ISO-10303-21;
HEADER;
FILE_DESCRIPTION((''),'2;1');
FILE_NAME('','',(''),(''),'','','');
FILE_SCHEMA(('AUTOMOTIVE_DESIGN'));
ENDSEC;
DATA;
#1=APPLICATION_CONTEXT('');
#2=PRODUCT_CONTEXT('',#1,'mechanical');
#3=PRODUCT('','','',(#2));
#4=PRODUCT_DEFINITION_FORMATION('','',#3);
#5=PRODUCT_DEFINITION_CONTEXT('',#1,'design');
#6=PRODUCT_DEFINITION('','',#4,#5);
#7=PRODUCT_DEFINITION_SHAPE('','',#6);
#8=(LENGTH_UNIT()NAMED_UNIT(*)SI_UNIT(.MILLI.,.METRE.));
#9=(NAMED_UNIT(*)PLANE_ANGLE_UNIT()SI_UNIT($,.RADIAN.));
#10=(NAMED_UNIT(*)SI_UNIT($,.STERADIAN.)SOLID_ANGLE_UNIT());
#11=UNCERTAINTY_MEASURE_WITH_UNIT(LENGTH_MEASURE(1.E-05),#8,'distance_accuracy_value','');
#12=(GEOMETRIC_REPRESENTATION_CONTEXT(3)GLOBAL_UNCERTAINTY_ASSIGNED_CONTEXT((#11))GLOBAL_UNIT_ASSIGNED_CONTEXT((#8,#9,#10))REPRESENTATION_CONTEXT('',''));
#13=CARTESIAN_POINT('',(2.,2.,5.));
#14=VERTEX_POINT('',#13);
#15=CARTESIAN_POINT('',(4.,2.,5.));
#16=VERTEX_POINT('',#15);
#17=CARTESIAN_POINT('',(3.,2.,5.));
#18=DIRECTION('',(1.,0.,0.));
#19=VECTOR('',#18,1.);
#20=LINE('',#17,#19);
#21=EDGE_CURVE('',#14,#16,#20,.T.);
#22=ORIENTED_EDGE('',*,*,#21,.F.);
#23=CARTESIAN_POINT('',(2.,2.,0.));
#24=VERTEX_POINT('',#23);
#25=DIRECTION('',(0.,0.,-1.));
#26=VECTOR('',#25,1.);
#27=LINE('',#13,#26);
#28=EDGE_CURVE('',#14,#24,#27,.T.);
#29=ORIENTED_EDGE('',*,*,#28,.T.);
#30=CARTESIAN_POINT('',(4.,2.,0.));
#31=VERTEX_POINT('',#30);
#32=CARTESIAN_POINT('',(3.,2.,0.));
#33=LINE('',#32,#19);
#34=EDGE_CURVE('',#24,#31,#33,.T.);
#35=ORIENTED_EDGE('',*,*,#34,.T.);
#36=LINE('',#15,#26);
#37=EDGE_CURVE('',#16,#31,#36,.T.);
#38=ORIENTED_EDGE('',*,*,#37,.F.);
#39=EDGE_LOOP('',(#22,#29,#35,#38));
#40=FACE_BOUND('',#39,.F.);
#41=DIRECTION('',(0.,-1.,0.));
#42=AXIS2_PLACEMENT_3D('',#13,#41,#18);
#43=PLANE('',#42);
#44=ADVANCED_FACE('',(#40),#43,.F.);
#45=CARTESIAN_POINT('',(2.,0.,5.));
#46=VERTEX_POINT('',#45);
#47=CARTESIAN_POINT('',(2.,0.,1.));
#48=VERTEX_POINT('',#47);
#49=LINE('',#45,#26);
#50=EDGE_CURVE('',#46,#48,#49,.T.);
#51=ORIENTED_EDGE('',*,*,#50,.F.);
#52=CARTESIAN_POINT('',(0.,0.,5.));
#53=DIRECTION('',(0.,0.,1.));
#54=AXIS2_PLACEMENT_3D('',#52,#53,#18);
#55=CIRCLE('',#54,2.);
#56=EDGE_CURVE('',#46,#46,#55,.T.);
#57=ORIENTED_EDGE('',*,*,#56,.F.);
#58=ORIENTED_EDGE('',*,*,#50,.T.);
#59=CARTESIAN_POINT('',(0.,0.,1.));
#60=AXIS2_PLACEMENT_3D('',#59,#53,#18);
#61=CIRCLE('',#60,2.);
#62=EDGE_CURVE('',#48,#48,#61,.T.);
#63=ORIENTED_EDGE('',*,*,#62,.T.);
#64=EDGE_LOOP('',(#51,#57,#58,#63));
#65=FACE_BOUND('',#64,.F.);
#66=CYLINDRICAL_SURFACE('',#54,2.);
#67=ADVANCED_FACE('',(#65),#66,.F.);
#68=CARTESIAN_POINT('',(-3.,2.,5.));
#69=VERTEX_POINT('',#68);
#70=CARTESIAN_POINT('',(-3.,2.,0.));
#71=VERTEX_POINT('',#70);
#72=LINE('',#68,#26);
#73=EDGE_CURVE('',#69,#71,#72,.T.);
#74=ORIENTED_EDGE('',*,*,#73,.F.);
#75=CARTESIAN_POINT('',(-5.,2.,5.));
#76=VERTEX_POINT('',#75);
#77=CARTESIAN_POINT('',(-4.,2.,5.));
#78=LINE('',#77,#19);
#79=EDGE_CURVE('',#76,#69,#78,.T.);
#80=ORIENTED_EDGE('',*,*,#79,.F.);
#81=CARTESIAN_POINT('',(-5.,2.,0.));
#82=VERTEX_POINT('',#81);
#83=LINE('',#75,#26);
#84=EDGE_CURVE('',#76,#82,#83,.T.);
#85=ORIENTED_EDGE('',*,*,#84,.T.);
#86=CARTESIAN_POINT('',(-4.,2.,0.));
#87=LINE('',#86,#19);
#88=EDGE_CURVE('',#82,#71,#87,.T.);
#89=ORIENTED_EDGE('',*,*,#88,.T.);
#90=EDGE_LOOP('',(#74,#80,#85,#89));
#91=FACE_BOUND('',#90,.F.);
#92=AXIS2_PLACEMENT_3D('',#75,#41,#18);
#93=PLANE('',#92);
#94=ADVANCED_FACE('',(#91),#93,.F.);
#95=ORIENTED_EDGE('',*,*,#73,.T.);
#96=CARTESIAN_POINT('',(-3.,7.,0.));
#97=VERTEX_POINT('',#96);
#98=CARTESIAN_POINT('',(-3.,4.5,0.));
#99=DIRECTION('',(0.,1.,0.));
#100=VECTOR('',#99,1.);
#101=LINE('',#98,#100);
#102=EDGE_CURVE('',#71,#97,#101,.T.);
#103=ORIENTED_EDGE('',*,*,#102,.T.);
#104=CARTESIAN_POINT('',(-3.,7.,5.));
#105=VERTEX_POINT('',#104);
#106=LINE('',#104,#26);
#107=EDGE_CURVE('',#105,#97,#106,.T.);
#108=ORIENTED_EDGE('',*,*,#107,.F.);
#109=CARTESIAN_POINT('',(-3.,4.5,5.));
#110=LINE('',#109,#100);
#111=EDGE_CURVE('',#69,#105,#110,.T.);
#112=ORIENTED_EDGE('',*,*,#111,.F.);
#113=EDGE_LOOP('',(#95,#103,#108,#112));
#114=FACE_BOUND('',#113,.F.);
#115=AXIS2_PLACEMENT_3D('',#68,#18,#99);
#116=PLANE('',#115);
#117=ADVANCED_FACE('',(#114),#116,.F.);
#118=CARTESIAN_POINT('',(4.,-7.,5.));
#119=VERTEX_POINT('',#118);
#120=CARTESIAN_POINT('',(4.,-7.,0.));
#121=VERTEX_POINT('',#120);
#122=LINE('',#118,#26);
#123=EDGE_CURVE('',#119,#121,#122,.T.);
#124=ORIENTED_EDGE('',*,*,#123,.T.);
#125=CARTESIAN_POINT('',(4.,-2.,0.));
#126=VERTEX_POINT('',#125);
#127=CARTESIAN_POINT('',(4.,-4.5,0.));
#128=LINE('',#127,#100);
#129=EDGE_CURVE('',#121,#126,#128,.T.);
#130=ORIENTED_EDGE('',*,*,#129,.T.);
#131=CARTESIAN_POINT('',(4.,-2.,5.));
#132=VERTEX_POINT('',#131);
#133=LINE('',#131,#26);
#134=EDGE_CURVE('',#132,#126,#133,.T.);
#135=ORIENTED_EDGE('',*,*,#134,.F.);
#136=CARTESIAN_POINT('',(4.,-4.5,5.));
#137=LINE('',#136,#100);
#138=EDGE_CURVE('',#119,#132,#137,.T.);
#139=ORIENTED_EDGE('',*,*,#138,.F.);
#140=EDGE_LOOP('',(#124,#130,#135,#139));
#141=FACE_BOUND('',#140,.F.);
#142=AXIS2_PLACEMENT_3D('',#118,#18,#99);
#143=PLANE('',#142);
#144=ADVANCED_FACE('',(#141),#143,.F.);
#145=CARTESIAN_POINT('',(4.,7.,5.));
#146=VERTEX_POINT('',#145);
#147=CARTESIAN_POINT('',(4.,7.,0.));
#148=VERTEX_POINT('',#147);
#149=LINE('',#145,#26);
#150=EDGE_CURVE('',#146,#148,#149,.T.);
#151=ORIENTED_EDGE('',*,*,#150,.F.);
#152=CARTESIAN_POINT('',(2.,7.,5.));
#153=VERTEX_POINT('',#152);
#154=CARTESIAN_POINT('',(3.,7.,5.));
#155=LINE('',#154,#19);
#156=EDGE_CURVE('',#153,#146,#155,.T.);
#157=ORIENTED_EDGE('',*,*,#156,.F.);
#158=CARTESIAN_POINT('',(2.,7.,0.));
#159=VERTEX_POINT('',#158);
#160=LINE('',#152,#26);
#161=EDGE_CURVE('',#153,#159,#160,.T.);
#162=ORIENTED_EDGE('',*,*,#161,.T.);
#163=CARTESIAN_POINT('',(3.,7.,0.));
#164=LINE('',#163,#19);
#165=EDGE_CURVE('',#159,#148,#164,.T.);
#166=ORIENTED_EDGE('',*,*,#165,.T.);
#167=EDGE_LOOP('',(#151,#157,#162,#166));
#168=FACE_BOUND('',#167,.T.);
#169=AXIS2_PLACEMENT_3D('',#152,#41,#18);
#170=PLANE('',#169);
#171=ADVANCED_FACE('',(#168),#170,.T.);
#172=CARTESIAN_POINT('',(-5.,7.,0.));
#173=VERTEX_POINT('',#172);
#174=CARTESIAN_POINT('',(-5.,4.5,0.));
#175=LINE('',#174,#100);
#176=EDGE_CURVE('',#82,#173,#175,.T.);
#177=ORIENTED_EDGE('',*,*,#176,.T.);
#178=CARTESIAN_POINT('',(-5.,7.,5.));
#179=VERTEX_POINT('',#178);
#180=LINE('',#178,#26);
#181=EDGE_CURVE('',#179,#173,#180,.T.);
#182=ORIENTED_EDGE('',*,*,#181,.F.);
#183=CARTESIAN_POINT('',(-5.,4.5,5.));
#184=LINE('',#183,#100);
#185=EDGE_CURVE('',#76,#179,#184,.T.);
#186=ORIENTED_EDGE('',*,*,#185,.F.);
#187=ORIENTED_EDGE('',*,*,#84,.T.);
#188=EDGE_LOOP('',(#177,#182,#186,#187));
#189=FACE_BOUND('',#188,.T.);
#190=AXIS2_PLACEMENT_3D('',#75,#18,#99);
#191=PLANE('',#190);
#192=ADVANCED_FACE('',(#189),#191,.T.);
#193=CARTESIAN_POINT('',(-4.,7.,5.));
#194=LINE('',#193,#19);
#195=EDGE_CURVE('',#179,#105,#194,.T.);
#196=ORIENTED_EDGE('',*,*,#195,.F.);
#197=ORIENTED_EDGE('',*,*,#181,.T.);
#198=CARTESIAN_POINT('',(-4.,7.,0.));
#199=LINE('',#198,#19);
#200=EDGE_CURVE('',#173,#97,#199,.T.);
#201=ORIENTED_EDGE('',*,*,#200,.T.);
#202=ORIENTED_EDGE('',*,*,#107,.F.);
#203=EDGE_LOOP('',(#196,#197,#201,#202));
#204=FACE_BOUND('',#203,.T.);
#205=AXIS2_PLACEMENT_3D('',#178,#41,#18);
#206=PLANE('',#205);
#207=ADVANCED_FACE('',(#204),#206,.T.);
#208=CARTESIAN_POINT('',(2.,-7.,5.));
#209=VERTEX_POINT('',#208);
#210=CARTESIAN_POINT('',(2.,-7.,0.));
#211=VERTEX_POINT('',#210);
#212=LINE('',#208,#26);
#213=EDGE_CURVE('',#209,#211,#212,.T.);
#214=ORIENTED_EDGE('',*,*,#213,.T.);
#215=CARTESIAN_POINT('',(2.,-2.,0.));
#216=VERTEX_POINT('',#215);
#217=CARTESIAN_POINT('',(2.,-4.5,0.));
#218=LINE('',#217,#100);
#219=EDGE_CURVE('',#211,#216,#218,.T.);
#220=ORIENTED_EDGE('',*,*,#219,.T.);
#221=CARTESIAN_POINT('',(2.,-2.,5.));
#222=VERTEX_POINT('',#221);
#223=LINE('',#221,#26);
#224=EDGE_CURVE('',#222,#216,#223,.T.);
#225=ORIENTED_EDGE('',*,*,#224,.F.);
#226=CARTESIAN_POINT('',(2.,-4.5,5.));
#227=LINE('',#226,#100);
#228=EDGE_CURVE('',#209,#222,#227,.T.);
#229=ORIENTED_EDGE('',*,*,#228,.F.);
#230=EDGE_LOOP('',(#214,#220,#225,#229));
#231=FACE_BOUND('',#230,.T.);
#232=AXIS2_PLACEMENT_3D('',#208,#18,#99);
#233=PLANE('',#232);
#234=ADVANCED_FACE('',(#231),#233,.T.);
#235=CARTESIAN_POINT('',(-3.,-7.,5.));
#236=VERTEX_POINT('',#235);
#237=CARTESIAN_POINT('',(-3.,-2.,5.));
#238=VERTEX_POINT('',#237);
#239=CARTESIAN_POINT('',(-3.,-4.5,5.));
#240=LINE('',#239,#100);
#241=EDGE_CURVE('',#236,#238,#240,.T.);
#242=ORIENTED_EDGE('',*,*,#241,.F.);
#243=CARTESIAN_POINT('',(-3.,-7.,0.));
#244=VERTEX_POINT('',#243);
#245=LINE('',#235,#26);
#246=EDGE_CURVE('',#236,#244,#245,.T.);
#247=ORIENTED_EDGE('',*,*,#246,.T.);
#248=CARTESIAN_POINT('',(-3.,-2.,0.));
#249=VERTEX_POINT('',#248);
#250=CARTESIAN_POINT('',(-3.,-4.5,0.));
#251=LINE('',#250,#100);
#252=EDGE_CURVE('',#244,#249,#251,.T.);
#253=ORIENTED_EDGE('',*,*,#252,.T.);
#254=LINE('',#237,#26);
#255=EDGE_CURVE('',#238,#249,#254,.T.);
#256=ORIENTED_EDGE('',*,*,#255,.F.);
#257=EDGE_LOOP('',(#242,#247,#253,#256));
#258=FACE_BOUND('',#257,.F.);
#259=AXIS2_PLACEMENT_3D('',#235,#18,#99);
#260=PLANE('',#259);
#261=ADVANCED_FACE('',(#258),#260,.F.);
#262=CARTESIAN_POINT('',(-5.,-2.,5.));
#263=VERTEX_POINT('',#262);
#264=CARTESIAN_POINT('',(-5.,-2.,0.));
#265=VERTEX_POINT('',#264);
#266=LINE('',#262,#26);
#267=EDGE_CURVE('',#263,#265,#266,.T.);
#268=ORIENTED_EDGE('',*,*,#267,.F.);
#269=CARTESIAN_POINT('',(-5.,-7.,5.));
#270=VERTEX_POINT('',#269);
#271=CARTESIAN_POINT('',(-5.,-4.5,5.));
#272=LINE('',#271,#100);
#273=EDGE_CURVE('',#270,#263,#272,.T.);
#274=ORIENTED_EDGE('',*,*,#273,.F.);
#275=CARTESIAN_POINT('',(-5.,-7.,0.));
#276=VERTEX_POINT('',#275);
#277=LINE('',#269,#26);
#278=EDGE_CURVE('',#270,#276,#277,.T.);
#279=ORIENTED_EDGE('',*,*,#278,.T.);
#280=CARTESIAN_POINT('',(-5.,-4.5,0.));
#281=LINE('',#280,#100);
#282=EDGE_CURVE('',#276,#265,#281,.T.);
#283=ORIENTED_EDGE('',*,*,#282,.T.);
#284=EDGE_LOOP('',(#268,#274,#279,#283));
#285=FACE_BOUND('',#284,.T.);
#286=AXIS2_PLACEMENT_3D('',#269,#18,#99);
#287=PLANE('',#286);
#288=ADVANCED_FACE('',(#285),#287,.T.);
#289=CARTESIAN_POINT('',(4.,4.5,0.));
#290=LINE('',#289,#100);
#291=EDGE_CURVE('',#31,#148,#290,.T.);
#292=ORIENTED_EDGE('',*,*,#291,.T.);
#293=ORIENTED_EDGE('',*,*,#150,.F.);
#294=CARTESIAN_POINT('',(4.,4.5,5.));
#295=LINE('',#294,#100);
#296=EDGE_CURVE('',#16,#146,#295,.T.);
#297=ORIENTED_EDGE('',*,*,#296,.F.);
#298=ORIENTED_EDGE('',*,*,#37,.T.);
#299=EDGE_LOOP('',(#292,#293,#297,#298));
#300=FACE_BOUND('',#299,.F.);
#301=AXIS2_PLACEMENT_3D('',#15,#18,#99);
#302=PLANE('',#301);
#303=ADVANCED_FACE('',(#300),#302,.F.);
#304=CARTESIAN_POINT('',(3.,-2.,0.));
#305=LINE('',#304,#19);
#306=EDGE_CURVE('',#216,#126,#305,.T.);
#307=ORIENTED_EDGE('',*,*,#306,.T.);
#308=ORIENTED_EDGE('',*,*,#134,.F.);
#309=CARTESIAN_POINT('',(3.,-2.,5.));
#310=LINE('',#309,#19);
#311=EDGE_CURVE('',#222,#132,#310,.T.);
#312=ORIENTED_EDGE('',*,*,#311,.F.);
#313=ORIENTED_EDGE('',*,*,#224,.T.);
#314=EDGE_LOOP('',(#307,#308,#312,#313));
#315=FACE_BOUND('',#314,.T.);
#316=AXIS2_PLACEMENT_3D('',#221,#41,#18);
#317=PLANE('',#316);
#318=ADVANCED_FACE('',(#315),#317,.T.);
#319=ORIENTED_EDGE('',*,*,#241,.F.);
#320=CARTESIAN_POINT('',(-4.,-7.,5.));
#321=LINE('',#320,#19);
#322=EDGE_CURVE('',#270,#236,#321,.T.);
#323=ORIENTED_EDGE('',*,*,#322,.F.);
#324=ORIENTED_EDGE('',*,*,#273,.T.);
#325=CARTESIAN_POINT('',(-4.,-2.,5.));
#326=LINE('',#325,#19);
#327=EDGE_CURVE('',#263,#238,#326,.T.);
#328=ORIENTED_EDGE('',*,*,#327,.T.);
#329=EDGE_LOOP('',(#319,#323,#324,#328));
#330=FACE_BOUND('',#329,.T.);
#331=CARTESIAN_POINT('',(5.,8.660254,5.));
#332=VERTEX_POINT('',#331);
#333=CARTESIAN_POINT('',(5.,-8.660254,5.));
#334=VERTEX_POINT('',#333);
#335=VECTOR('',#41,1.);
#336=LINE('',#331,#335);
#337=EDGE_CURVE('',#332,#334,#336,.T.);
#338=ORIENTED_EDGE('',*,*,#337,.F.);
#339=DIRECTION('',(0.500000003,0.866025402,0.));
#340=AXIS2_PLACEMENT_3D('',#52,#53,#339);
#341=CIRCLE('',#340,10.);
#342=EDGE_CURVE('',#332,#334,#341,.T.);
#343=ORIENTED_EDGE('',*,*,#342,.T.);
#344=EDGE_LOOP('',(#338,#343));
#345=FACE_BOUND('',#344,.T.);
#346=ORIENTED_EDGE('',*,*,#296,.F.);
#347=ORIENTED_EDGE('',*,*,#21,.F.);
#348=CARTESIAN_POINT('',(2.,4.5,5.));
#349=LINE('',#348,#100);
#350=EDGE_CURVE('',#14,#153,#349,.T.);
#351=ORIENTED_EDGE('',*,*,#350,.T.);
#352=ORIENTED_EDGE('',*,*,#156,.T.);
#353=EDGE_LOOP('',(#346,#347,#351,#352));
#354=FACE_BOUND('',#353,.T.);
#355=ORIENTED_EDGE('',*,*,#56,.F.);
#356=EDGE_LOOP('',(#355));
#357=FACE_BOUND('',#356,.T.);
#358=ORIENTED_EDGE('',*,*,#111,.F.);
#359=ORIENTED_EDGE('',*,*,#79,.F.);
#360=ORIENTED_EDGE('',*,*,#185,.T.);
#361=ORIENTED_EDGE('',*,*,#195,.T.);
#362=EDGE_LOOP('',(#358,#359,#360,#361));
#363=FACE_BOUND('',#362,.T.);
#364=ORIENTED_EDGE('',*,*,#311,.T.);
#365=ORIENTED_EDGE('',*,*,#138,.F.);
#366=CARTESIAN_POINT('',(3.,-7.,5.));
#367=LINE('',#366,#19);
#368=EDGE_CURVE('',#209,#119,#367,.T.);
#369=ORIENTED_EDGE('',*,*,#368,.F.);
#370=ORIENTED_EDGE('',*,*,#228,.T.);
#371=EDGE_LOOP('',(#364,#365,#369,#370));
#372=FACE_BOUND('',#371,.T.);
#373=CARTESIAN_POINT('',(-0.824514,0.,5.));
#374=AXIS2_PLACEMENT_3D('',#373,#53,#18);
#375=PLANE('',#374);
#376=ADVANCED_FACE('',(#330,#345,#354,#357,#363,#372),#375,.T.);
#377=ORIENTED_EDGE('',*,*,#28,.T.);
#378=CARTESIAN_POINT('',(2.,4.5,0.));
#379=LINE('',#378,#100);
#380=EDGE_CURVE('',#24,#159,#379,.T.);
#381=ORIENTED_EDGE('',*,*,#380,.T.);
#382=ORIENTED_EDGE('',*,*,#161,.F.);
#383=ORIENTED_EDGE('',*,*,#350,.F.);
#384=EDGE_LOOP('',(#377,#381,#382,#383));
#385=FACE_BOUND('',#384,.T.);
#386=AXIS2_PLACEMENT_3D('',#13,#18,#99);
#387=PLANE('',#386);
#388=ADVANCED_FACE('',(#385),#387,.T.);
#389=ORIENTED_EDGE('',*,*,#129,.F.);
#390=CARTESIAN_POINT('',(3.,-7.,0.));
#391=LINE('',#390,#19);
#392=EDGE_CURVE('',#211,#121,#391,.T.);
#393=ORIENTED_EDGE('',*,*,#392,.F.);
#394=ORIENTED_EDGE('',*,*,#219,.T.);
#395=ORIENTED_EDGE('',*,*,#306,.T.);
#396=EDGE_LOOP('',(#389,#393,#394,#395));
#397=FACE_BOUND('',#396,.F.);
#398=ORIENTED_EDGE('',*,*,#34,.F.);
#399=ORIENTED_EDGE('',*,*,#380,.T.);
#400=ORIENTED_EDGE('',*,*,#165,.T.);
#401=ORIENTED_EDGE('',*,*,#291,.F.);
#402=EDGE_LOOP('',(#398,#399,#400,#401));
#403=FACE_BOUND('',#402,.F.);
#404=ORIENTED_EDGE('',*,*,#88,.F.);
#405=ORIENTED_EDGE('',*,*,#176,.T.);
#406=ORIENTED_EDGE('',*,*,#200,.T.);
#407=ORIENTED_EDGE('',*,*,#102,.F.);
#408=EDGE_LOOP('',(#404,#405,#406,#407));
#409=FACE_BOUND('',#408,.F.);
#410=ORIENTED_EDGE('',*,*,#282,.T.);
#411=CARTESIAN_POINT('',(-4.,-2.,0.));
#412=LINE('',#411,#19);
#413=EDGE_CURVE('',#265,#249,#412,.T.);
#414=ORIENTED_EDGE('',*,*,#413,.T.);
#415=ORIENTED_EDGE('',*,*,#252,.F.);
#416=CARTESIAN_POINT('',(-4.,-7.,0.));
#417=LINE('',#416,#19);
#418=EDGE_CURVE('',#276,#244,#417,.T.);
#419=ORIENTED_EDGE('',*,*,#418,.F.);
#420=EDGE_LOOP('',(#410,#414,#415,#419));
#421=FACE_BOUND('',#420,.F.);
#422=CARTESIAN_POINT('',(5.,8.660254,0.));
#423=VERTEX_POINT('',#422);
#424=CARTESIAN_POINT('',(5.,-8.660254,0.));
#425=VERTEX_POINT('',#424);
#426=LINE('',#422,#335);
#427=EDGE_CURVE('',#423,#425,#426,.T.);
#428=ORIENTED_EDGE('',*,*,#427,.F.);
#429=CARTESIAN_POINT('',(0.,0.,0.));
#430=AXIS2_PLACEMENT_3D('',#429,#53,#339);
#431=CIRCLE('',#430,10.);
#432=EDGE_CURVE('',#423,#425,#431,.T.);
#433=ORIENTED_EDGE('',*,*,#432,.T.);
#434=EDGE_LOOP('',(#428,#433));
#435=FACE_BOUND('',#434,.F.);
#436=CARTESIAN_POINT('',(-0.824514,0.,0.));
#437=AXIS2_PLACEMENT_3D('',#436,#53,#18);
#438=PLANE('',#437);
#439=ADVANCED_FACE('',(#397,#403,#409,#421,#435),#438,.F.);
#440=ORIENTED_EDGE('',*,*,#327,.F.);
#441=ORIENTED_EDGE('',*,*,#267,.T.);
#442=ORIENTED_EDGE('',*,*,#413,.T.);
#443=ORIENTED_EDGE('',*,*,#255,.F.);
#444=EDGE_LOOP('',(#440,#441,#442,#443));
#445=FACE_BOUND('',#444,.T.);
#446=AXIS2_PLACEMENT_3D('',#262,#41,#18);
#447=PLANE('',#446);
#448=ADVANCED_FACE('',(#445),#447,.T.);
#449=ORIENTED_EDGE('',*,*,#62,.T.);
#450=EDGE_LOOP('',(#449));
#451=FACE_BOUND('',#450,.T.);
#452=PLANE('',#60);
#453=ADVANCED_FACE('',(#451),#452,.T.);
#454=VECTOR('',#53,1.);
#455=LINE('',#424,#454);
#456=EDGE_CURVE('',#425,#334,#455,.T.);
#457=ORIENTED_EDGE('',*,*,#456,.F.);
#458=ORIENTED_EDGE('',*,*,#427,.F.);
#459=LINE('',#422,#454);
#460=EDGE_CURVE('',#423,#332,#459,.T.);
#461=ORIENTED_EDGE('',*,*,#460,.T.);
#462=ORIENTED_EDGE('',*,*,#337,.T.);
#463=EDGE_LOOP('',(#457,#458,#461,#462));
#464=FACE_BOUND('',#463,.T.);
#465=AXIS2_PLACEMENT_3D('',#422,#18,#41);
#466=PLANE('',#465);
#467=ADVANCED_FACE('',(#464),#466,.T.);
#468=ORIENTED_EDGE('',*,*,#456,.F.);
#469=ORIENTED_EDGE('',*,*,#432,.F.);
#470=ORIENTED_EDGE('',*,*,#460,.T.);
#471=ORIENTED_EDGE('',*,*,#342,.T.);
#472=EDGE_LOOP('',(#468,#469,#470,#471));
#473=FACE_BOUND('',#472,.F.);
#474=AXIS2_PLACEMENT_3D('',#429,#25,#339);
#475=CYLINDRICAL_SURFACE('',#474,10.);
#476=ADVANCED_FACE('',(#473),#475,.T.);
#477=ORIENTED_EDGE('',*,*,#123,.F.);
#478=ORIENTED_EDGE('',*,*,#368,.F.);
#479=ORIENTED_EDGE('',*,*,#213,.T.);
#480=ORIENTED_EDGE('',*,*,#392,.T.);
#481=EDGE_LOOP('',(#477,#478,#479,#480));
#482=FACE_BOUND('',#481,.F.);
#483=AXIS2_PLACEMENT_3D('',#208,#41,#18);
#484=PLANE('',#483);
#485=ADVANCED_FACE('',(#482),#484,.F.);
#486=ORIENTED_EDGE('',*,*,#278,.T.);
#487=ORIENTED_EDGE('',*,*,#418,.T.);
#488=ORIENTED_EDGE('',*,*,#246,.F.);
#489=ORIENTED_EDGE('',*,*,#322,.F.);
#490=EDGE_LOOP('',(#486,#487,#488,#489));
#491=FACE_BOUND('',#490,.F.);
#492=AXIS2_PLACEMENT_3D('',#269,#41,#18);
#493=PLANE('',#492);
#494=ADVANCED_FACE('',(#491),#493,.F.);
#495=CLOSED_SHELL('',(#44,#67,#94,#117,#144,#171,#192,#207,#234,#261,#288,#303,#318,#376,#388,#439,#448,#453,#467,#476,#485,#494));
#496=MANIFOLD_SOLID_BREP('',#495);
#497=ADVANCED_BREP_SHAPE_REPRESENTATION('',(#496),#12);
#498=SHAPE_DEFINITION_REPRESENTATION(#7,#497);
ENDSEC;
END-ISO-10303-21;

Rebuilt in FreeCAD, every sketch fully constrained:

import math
import FreeCAD as App
import Part
import Sketcher

V = App.Vector
Q = App.Units.Quantity


def add_polygon(sketch, points):
    """Adds a closed chain of lines whose ends are joined by coincident constraints."""
    first, n = sketch.GeometryCount, len(points)
    for a, b in zip(points, points[1:] + points[:1]):
        sketch.addGeometry(Part.LineSegment(App.Vector(*a, 0), App.Vector(*b, 0)), False)
    for i in range(n):
        sketch.addConstraint(Sketcher.Constraint("Coincident", first + i, 2, first + (i + 1) % n, 1))

doc = App.newDocument("Part")
body = doc.addObject("PartDesign::Body", "Body")

# Sketch on XY plane
sketch1 = doc.addObject("Sketcher::SketchObject", "Sketch")
body.addObject(sketch1)
sketch1.AttachmentSupport = (doc.XY_Plane, [""])
sketch1.MapMode = "FlatFace"
sketch1.addGeometry([
    Part.ArcOfCircle(Part.Circle(V(0, 0, 0), V(0, 0, 1), 10), math.radians(60), math.radians(300)),
    Part.LineSegment(V(5, -9, 0), V(5, 9, 0)),
], False)
sketch1.addConstraint([
    Sketcher.Constraint("Coincident", 0, 1, 1, 2),
    Sketcher.Constraint("Coincident", 1, 1, 0, 2),
    Sketcher.Constraint("Vertical", 1),
    Sketcher.Constraint("Coincident", 0, 3, -1, 1),
    Sketcher.Constraint("Radius", 0, Q("10 mm")),
    Sketcher.Constraint("DistanceX", -1, 1, 0, 1, Q("5 mm")),
])
pad1 = doc.addObject("PartDesign::Pad", "Pad")
body.addObject(pad1)
pad1.Profile = sketch1
pad1.Length = 5

# Sketch on XY plane
sketch2 = doc.addObject("Sketcher::SketchObject", "Sketch001")
body.addObject(sketch2)
sketch2.AttachmentSupport = (doc.XY_Plane, [""])
sketch2.MapMode = "FlatFace"
sketch2.AttachmentOffset = App.Placement(V(0, 0, 5), App.Rotation())
add_polygon(sketch2, [(-5, 7), (-5, 2), (-3, 2), (-3, 7)])  # lines 0-3
add_polygon(sketch2, [(2, 7), (2, 2), (4, 2), (4, 7)])  # lines 4-7
add_polygon(sketch2, [(2, -2), (2, -7), (4, -7), (4, -2)])  # lines 8-11
add_polygon(sketch2, [(-5, -2), (-5, -7), (-3, -7), (-3, -2)])  # lines 12-15
sketch2.addConstraint([
    Sketcher.Constraint("Vertical", 0),
    Sketcher.Constraint("Horizontal", 1),
    Sketcher.Constraint("Vertical", 2),
    Sketcher.Constraint("Horizontal", 3),
    Sketcher.Constraint("Vertical", 4),
    Sketcher.Constraint("Horizontal", 5),
    Sketcher.Constraint("Vertical", 6),
    Sketcher.Constraint("Horizontal", 7),
    Sketcher.Constraint("Vertical", 8),
    Sketcher.Constraint("Horizontal", 9),
    Sketcher.Constraint("Vertical", 10),
    Sketcher.Constraint("Horizontal", 11),
    Sketcher.Constraint("Vertical", 12),
    Sketcher.Constraint("Horizontal", 13),
    Sketcher.Constraint("Vertical", 14),
    Sketcher.Constraint("Horizontal", 15),
    Sketcher.Constraint("Symmetric", 7, 2, 8, 2, -1),
    Sketcher.Constraint("Symmetric", 5, 2, 10, 2, -1),
    Sketcher.Constraint("Symmetric", 3, 2, 12, 2, -1),
    Sketcher.Constraint("Symmetric", 1, 2, 14, 2, -1),
    Sketcher.Constraint("Horizontal", 1, 2, 4, 2),
    Sketcher.Constraint("Horizontal", 3, 2, 6, 2),
    Sketcher.Constraint("Equal", 3, 5),
    Sketcher.Constraint("DistanceX", 1, 1, 1, 2, Q("2 mm")),
    Sketcher.Constraint("DistanceY", 0, 2, 0, 1, Q("5 mm")),
    Sketcher.Constraint("DistanceX", 0, 2, -1, 1, Q("5 mm")),
    Sketcher.Constraint("DistanceY", -1, 1, 0, 2, Q("2 mm")),
    Sketcher.Constraint("DistanceX", -1, 1, 4, 2, Q("2 mm")),
])
pocket1 = doc.addObject("PartDesign::Pocket", "Pocket")
body.addObject(pocket1)
pocket1.Profile = sketch2
pocket1.Length = 5

# Sketch on XY plane
sketch3 = doc.addObject("Sketcher::SketchObject", "Sketch002")
body.addObject(sketch3)
sketch3.AttachmentSupport = (doc.XY_Plane, [""])
sketch3.MapMode = "FlatFace"
sketch3.AttachmentOffset = App.Placement(V(0, 0, 5), App.Rotation())
sketch3.addGeometry(Part.Circle(V(0, 0, 0), V(0, 0, 1), 2), False)
sketch3.addConstraint([
    Sketcher.Constraint("Coincident", 0, 3, -1, 1),
    Sketcher.Constraint("Diameter", 0, Q("4 mm")),
])
pocket2 = doc.addObject("PartDesign::Pocket", "Pocket001")
body.addObject(pocket2)
pocket2.Profile = sketch3
pocket2.Length = 4

doc.recompute()
